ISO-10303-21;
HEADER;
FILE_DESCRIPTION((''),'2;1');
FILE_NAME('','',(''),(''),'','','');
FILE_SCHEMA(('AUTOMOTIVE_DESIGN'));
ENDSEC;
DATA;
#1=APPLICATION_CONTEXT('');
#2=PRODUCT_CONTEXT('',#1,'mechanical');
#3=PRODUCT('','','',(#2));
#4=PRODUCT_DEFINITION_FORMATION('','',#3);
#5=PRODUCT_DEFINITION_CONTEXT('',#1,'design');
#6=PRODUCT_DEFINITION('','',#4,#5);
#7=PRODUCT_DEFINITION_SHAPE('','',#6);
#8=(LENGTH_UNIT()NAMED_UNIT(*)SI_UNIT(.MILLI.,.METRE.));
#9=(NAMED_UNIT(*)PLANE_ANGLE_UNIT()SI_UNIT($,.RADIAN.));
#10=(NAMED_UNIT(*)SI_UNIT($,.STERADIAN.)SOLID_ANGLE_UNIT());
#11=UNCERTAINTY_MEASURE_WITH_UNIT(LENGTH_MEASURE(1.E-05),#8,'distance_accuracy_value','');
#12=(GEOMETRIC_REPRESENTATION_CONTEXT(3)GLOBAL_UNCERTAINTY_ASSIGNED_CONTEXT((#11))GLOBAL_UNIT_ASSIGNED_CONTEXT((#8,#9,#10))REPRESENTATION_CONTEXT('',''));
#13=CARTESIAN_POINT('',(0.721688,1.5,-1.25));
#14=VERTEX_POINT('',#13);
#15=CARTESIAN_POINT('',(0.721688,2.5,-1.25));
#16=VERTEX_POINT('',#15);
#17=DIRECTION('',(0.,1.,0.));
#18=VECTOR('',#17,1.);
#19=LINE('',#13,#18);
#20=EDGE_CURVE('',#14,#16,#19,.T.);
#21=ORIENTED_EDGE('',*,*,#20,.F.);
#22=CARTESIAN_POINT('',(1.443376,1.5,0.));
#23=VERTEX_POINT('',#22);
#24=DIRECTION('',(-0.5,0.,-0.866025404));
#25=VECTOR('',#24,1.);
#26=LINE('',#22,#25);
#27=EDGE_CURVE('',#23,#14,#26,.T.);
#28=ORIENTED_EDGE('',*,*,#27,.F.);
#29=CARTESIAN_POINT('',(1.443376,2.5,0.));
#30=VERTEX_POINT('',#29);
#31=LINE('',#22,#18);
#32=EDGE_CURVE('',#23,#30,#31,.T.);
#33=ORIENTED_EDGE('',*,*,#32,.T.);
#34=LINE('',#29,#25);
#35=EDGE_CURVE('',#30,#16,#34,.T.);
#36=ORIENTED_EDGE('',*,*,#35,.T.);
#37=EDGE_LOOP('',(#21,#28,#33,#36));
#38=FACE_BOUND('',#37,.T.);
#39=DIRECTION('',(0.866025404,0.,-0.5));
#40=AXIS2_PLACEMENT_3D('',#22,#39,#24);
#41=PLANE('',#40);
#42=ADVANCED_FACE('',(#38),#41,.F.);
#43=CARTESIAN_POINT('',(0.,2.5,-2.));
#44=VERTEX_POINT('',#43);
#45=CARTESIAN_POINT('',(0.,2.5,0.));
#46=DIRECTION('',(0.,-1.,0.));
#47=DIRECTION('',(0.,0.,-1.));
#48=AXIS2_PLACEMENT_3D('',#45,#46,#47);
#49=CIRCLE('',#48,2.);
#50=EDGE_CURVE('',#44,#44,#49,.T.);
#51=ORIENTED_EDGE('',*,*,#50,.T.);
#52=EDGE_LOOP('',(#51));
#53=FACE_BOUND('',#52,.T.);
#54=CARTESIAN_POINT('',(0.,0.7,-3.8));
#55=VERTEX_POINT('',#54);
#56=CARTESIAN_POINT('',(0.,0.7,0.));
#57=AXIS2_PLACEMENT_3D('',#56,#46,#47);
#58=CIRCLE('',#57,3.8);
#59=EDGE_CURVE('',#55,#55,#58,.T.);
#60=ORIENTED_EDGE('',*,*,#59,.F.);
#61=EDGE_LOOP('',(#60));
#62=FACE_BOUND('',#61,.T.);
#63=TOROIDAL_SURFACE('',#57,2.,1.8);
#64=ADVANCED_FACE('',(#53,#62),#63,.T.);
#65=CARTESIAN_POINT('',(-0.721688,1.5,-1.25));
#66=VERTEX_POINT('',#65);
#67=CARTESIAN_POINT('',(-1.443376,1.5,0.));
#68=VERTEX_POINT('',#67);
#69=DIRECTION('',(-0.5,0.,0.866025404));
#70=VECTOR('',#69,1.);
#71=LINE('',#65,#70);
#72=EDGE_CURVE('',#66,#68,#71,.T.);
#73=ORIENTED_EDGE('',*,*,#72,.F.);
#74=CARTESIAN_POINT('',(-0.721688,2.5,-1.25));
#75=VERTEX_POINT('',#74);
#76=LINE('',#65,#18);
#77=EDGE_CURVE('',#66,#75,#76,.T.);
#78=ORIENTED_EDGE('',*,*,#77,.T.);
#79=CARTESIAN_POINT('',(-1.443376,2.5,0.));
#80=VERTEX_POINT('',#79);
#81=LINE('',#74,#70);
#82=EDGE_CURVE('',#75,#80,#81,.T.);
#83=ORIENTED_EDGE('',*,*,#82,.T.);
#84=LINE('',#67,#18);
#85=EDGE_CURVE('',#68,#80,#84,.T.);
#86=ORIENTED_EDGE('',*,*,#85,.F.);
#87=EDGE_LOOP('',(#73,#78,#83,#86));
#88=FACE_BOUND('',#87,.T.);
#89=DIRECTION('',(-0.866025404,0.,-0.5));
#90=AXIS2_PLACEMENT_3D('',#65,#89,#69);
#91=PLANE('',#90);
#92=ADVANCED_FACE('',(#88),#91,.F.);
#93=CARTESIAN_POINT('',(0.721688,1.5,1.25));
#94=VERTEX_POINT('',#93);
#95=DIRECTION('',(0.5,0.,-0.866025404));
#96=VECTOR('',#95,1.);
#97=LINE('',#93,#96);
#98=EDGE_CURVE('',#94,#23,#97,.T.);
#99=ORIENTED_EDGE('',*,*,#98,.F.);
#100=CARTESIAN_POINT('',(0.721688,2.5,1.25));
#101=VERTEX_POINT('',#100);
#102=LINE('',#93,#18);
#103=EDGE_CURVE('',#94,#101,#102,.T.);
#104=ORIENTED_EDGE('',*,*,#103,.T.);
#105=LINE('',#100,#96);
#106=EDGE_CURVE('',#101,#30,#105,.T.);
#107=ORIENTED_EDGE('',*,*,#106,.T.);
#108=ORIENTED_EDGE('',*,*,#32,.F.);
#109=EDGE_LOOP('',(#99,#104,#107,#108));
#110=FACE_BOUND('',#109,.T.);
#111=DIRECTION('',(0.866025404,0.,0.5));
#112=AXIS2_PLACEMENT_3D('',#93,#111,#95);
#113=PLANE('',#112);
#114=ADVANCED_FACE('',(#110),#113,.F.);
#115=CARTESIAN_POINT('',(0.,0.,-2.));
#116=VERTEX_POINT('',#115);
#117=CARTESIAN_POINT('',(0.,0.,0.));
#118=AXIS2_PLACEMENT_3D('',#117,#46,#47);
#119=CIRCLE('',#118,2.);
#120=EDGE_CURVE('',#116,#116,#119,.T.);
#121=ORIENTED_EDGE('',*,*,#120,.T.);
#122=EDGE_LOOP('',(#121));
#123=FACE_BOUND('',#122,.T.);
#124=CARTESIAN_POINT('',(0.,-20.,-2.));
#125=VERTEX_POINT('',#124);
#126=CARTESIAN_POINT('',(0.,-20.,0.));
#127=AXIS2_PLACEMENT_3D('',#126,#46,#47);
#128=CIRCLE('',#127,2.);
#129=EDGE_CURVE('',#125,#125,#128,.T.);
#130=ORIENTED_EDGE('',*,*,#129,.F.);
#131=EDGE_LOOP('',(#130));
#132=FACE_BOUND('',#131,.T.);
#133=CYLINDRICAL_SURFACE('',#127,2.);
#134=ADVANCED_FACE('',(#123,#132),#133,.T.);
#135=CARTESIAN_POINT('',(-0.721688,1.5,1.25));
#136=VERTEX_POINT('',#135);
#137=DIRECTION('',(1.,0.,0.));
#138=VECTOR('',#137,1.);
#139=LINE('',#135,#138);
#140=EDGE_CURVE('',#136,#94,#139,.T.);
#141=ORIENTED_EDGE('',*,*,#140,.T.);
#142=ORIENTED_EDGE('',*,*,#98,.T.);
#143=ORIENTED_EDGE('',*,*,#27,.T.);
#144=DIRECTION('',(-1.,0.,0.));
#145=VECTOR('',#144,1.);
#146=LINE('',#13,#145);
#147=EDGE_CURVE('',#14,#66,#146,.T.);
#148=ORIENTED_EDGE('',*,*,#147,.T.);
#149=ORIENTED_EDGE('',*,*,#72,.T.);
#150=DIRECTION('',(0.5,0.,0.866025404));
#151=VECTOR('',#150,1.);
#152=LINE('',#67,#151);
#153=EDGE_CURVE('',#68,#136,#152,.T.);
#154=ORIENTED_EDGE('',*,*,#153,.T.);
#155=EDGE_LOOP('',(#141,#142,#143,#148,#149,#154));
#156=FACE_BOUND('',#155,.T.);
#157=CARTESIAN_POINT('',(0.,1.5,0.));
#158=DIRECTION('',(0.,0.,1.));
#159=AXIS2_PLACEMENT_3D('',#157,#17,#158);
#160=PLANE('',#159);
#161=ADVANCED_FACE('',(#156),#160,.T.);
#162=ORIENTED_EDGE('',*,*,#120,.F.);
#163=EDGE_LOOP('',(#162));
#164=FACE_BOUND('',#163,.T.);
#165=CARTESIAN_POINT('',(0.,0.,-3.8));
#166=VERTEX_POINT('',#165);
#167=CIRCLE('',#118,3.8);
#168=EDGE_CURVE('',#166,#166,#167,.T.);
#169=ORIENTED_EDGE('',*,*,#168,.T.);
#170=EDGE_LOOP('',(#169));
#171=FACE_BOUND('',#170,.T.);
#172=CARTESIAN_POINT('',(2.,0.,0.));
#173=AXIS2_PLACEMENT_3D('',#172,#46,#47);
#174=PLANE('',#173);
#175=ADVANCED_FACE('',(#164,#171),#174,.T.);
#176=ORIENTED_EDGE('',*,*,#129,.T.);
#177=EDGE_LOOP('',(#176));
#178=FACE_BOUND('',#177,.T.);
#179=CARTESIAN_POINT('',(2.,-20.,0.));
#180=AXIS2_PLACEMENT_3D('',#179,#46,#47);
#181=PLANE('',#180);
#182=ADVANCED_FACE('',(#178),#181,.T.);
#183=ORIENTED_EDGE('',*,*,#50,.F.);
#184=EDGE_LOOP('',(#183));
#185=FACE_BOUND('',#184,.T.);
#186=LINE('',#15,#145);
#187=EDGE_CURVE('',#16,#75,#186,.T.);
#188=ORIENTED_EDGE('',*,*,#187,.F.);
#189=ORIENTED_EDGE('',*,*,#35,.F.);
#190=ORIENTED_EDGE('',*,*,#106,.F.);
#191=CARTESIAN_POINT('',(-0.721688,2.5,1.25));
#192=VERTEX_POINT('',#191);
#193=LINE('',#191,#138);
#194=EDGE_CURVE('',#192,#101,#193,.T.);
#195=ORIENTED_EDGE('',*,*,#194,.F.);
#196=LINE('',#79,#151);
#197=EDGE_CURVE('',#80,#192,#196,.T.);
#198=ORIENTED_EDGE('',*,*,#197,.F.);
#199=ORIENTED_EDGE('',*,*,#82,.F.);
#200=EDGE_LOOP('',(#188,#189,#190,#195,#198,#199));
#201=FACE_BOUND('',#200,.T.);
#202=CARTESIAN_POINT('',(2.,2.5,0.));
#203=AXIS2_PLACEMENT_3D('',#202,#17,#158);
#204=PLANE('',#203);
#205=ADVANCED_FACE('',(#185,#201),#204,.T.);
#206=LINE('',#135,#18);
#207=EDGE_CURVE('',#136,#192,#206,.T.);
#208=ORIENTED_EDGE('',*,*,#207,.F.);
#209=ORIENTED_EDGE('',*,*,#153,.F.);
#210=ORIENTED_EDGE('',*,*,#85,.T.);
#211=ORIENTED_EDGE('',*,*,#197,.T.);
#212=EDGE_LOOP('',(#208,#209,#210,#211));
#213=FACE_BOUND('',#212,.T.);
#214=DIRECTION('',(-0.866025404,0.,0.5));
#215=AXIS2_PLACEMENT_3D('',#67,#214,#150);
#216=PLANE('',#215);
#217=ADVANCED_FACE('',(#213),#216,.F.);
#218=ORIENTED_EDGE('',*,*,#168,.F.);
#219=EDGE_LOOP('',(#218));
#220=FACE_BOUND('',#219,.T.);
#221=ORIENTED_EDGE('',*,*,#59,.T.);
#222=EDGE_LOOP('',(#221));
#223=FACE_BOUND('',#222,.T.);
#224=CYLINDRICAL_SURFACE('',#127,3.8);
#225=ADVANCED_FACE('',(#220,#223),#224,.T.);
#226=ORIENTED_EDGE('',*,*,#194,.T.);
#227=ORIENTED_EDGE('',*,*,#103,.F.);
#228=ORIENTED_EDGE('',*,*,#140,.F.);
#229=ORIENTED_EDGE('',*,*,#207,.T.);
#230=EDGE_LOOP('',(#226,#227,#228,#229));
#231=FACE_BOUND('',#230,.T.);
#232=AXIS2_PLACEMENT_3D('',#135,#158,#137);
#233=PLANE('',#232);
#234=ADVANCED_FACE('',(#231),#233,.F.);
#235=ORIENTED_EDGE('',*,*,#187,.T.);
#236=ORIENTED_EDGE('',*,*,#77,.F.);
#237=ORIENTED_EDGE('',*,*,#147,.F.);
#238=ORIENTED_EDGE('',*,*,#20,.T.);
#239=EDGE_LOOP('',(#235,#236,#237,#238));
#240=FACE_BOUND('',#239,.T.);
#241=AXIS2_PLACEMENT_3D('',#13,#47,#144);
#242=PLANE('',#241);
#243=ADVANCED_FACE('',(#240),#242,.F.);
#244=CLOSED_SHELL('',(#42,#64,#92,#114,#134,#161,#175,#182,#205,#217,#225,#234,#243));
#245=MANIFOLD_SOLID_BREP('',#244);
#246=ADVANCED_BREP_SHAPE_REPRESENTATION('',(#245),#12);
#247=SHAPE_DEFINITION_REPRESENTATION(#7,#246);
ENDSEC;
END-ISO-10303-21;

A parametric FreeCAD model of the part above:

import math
import FreeCAD as App
import Part
import Sketcher
Q = App.Units.Quantity


def add_polygon(sketch, points):
    """Adds a closed chain of lines whose ends are joined by coincident constraints."""
    first, n = sketch.GeometryCount, len(points)
    for a, b in zip(points, points[1:] + points[:1]):
        sketch.addGeometry(Part.LineSegment(App.Vector(*a, 0), App.Vector(*b, 0)), False)
    for i in range(n):
        sketch.addConstraint(Sketcher.Constraint("Coincident", first + i, 2, first + (i + 1) % n, 1))

doc = App.newDocument("Part")
params = doc.addObject("Spreadsheet::Sheet", "Params")
for row, (alias, value) in enumerate([
    ("sketch1_radius", "1.8 mm"),
    ("sketch1_width", "2 mm"),
    ("sketch1_height", "20 mm"),
    ("sketch1_height2", "0.7 mm"),
    ("revolution_angle", "360 deg"),
    ("pocket1_length", "1 mm"),
], start=1):
    params.set(f"A{row}", alias)
    params.set(f"B{row}", "=" + value)
    params.setAlias(f"B{row}", alias)

body = doc.addObject("PartDesign::Body", "Body")

# Sketch on XY plane
sketch1 = body.newObject("Sketcher::SketchObject", "Sketch")
sketch1.AttachmentSupport = (doc.getObject("XY_Plane"), [""])
sketch1.MapMode = "FlatFace"
sketch1.addGeometry(Part.LineSegment(App.Vector(2, 0, 0), App.Vector(3.8, 0, 0)), False)
sketch1.addGeometry(Part.LineSegment(App.Vector(3.8, 0, 0), App.Vector(3.8, 0.7, 0)), False)
sketch1.addGeometry(Part.ArcOfCircle(Part.Circle(App.Vector(2, 0.7, 0), App.Vector(0, 0, 1), 1.8), math.radians(0), math.radians(90)), False)
sketch1.addGeometry(Part.LineSegment(App.Vector(2, 2.5, 0), App.Vector(0, 2.5, 0)), False)
sketch1.addGeometry(Part.LineSegment(App.Vector(0, 2.5, 0), App.Vector(0, -20, 0)), False)
sketch1.addGeometry(Part.LineSegment(App.Vector(0, -20, 0), App.Vector(2, -20, 0)), False)
sketch1.addGeometry(Part.LineSegment(App.Vector(2, -20, 0), App.Vector(2, 0, 0)), False)
sketch1.addConstraint(Sketcher.Constraint("Coincident", 0, 2, 1, 1))
sketch1.addConstraint(Sketcher.Constraint("Tangent", 1, 2, 2, 1))
sketch1.addConstraint(Sketcher.Constraint("Tangent", 2, 2, 3, 1))
sketch1.addConstraint(Sketcher.Constraint("Coincident", 3, 2, 4, 1))
sketch1.addConstraint(Sketcher.Constraint("Coincident", 4, 2, 5, 1))
sketch1.addConstraint(Sketcher.Constraint("Coincident", 5, 2, 6, 1))
sketch1.addConstraint(Sketcher.Constraint("Coincident", 6, 2, 0, 1))
sketch1.addConstraint(Sketcher.Constraint("Horizontal", 0))
sketch1.addConstraint(Sketcher.Constraint("Vertical", 1))
sketch1.addConstraint(Sketcher.Constraint("Horizontal", 3))
sketch1.addConstraint(Sketcher.Constraint("Vertical", 4))
sketch1.addConstraint(Sketcher.Constraint("Horizontal", 5))
sketch1.addConstraint(Sketcher.Constraint("Vertical", 6))
sketch1.addConstraint(Sketcher.Constraint("PointOnObject", 0, 2, -1))
sketch1.addConstraint(Sketcher.Constraint("PointOnObject", 3, 2, -2))
sketch1.addConstraint(Sketcher.Constraint("Vertical", 2, 2, 5, 2))
sketch1.addConstraint(Sketcher.Constraint("Radius", 2, Q("1.8 mm")))
sketch1.addConstraint(Sketcher.Constraint("DistanceX", 3, 2, 3, 1, Q("2 mm")))
sketch1.addConstraint(Sketcher.Constraint("DistanceY", 6, 1, 6, 2, Q("20 mm")))
sketch1.addConstraint(Sketcher.Constraint("DistanceY", 1, 1, 1, 2, Q("0.7 mm")))
sketch1.setExpression("Constraints[16]", "Params.sketch1_radius")
sketch1.setExpression("Constraints[17]", "Params.sketch1_width")
sketch1.setExpression("Constraints[18]", "Params.sketch1_height")
sketch1.setExpression("Constraints[19]", "Params.sketch1_height2")
revolution = body.newObject("PartDesign::Revolution", "Revolution")
revolution.Profile = sketch1
revolution.ReferenceAxis = (sketch1, ["V_Axis"])
revolution.setExpression("Angle", "Params.revolution_angle")

# Sketch on XZ plane
sketch2 = body.newObject("Sketcher::SketchObject", "Sketch001")
sketch2.AttachmentSupport = (doc.getObject("XZ_Plane"), [""])
sketch2.MapMode = "FlatFace"
sketch2.AttachmentOffset = App.Placement(App.Vector(0, 0, -2.5), App.Rotation())
add_polygon(sketch2, [(0.7, -1.2), (-0.7, -1.2), (-1.4, 0), (-0.7, 1.2), (0.7, 1.2), (1.4, 0)])  # lines 0-5
sketch2.addConstraint(Sketcher.Constraint("Horizontal", 0))
sketch2.addConstraint(Sketcher.Constraint("Horizontal", 3))
sketch2.addConstraint(Sketcher.Constraint("Symmetric", 0, 2, 3, 2, -1, 1))
sketch2.addConstraint(Sketcher.Constraint("Symmetric", 1, 2, 4, 2, -1, 1))
sketch2.addConstraint(Sketcher.Constraint("PointOnObject", 1, 2, -1))
sketch2.addConstraint(Sketcher.Constraint("Parallel", 2, 5))
sketch2.addConstraint(Sketcher.Constraint("Vertical", 0, 2, 2, 2))
sketch2.addConstraint(Sketcher.Constraint("Angle", 1, Q("120 deg")))
sketch2.addConstraint(Sketcher.Constraint("DistanceY", 0, 2, 2, 2, Q("2.5 mm")))
sketch2.addConstraint(Sketcher.Constraint("DistanceX", 0, 2, 0, 1, Q("1.443376 mm")))
pocket1 = body.newObject("PartDesign::Pocket", "Pocket")
pocket1.Profile = sketch2
pocket1.setExpression("Length", "Params.pocket1_length")
pocket1.Reversed = True

doc.recompute()
